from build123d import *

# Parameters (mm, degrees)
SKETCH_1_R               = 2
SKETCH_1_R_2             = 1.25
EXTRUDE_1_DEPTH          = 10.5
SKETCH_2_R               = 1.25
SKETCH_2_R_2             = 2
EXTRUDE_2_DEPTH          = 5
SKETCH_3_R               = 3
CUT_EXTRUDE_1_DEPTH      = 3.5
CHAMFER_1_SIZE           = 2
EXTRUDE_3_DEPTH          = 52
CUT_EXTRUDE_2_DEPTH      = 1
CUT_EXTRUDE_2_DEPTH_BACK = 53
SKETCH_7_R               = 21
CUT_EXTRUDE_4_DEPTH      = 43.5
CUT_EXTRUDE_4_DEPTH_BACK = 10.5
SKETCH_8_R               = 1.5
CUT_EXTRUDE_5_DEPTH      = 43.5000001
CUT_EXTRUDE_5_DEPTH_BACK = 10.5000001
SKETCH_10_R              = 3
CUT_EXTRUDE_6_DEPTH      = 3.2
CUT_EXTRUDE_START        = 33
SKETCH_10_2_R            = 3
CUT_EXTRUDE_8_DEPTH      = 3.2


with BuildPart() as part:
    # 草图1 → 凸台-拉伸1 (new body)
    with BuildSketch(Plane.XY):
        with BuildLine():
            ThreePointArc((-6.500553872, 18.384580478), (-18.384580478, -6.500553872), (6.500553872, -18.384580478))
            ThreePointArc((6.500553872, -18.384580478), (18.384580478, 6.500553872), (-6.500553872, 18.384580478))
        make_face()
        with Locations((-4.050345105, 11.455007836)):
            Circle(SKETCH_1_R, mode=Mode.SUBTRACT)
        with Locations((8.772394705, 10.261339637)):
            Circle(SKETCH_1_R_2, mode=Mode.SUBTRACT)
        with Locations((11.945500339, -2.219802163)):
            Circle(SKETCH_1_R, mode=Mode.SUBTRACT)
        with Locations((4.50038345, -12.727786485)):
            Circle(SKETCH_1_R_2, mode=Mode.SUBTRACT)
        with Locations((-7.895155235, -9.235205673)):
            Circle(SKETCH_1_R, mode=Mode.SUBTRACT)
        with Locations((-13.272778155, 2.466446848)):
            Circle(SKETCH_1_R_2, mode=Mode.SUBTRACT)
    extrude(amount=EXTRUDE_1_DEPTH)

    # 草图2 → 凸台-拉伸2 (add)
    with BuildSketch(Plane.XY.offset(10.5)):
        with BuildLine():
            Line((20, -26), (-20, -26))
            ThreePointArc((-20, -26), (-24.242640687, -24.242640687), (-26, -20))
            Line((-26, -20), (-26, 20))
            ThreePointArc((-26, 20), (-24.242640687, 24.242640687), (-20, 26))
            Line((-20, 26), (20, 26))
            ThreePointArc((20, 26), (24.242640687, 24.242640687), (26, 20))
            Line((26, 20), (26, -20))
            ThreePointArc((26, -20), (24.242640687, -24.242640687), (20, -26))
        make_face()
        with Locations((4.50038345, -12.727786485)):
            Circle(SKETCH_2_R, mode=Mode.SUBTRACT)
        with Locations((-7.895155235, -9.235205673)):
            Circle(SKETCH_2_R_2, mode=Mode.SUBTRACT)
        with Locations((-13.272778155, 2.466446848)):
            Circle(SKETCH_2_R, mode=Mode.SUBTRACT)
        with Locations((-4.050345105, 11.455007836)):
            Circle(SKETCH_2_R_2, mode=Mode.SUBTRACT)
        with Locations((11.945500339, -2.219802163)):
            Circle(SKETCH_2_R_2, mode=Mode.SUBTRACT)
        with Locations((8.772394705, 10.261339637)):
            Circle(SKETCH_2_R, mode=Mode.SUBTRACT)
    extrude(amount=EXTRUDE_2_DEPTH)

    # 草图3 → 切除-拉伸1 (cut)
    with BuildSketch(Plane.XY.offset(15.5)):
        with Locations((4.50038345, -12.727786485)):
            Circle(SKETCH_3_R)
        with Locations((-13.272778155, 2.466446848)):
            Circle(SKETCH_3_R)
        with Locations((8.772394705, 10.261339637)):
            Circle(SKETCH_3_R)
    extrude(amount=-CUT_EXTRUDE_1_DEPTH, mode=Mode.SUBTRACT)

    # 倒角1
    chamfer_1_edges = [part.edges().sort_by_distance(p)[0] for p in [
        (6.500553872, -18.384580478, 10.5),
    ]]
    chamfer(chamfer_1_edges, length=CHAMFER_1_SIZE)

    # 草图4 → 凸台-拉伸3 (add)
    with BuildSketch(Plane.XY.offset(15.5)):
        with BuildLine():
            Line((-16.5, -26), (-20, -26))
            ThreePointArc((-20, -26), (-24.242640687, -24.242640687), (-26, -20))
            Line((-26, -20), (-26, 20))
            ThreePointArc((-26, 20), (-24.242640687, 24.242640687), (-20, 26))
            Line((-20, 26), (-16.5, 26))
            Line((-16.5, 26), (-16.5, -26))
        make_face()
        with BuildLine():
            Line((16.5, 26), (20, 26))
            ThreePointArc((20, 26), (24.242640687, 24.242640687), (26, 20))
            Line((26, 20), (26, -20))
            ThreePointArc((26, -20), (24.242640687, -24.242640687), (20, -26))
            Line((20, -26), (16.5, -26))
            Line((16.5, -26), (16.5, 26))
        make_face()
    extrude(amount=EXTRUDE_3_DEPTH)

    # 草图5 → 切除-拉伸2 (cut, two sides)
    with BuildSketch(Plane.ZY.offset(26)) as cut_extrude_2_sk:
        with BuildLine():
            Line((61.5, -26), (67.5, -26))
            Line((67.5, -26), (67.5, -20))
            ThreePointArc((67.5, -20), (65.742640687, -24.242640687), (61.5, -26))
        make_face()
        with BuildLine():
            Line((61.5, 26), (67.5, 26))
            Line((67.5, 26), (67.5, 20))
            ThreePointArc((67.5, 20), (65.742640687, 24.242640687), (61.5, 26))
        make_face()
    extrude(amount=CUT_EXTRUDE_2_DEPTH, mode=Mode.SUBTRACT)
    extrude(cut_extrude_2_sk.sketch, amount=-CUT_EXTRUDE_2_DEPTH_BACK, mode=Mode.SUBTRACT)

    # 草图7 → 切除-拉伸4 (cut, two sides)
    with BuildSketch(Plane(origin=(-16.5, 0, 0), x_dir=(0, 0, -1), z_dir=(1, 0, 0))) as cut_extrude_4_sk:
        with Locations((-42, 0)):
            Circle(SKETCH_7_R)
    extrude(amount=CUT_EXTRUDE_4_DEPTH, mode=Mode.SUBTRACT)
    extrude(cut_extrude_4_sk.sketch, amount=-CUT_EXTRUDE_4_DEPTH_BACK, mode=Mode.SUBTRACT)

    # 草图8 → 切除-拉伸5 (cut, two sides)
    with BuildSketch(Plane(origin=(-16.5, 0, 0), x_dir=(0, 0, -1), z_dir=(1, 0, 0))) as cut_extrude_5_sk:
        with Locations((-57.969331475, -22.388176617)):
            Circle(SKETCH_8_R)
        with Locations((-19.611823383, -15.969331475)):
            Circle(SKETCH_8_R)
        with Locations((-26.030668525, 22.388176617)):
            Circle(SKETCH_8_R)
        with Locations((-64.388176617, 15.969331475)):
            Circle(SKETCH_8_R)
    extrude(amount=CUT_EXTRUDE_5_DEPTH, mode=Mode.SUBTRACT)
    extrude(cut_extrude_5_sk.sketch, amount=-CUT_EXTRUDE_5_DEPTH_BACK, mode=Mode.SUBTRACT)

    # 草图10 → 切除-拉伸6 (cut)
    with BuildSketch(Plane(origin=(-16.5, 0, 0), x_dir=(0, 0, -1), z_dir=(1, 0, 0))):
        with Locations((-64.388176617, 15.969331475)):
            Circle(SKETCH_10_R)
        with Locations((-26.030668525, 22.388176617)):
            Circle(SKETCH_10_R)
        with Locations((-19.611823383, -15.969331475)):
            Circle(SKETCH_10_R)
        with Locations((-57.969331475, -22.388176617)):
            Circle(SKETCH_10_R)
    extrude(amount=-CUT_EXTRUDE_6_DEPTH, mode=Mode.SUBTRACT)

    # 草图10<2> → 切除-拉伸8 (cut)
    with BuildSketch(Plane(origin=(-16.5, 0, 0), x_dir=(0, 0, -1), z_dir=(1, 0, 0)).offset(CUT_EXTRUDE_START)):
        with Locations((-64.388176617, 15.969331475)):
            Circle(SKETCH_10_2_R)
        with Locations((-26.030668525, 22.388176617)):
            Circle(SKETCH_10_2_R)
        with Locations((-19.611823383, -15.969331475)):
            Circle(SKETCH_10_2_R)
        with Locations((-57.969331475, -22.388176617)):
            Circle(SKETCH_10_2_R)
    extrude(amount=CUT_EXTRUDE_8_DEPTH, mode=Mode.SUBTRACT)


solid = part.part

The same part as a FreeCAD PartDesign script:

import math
import FreeCAD as App
import Part
import Sketcher

V = App.Vector
Q = App.Units.Quantity


def edges_at(feature, points):
    """Names of the edges that pass closest to the given points."""
    edges = feature.Shape.Edges
    near = lambda p: min(range(len(edges)), key=lambda i: edges[i].distToShape(Part.Vertex(*p))[0])
    return sorted({f"Edge{near(p) + 1}" for p in points})

doc = App.newDocument("Part")
body = doc.addObject("PartDesign::Body", "Body")

sketch1 = body.newObject("Sketcher::SketchObject", "Sketch")
sketch1.AttachmentSupport = (doc.getObject("XY_Plane"), [""])
sketch1.MapMode = "FlatFace"
sketch1.addGeometry([
    Part.Circle(V(0, 0, 0), V(0, 0, 1), 19.5),
    Part.Circle(V(-7.9, -9.2, 0), V(0, 0, 1), 2),
    Part.Circle(V(4.5, -12.7, 0), V(0, 0, 1), 1.2),
    Part.Circle(V(11.9, -2.2, 0), V(0, 0, 1), 2),
    Part.Circle(V(-13.3, 2.5, 0), V(0, 0, 1), 1.2),
    Part.Circle(V(-4.1, 11.5, 0), V(0, 0, 1), 2),
    Part.Circle(V(8.8, 10.3, 0), V(0, 0, 1), 1.2),
], False)
sketch1.addConstraint([
    Sketcher.Constraint("Coincident", 0, 3, -1, 1),
    Sketcher.Constraint("Equal", 1, 3),
    Sketcher.Constraint("Equal", 2, 4),
    Sketcher.Constraint("Equal", 3, 5),
    Sketcher.Constraint("Equal", 4, 6),
    Sketcher.Constraint("Diameter", 0, Q("39 mm")),
    Sketcher.Constraint("Diameter", 1, Q("4 mm")),
    Sketcher.Constraint("Diameter", 2, Q("2.5 mm")),
    Sketcher.Constraint("DistanceX", -1, 1, 3, 3, Q("11.9455 mm")),
    Sketcher.Constraint("DistanceX", 4, 3, -1, 1, Q("13.272778 mm")),
    Sketcher.Constraint("DistanceY", -1, 1, 6, 3, Q("10.26134 mm")),
    Sketcher.Constraint("DistanceX", 1, 3, 2, 3, Q("12.395539 mm")),
    Sketcher.Constraint("DistanceY", 2, 3, 1, 3, Q("3.492581 mm")),
    Sketcher.Constraint("DistanceX", 4, 3, 2, 3, Q("17.773162 mm")),
    Sketcher.Constraint("DistanceY", 3, 3, 4, 3, Q("4.686249 mm")),
    Sketcher.Constraint("DistanceY", 4, 3, 5, 3, Q("8.988561 mm")),
    Sketcher.Constraint("DistanceX", 1, 3, 5, 3, Q("3.84481 mm")),
    Sketcher.Constraint("DistanceY", 3, 3, 6, 3, Q("12.481142 mm")),
    Sketcher.Constraint("DistanceX", 5, 3, 6, 3, Q("12.82274 mm")),
    Sketcher.Constraint("DistanceY", 1, 3, -1, 1, Q("9.235206 mm")),
])
pad1 = body.newObject("PartDesign::Pad", "Pad")
pad1.Profile = sketch1
pad1.Length = 10.5

sketch2 = body.newObject("Sketcher::SketchObject", "Sketch001")
sketch2.AttachmentSupport = (doc.getObject("XY_Plane"), [""])
sketch2.MapMode = "FlatFace"
sketch2.AttachmentOffset = App.Placement(V(0, 0, 10.5), App.Rotation())
sketch2.addGeometry([
    Part.LineSegment(V(-20, -26, 0), V(20, -26, 0)),
    Part.ArcOfCircle(Part.Circle(V(20, -20, 0), V(0, 0, 1), 6), math.radians(-90), math.radians(0)),
    Part.LineSegment(V(26, -20, 0), V(26, 20, 0)),
    Part.ArcOfCircle(Part.Circle(V(20, 20, 0), V(0, 0, 1), 6), math.radians(0), math.radians(90)),
    Part.LineSegment(V(20, 26, 0), V(-20, 26, 0)),
    Part.ArcOfCircle(Part.Circle(V(-20, 20, 0), V(0, 0, 1), 6), math.radians(90), math.radians(180)),
    Part.LineSegment(V(-26, 20, 0), V(-26, -20, 0)),
    Part.ArcOfCircle(Part.Circle(V(-20, -20, 0), V(0, 0, 1), 6), math.radians(180), math.radians(270)),
    Part.Circle(V(4.5, -12.7, 0), V(0, 0, 1), 1.2),
    Part.Circle(V(11.9, -2.2, 0), V(0, 0, 1), 2),
    Part.Circle(V(-7.9, -9.2, 0), V(0, 0, 1), 2),
    Part.Circle(V(8.8, 10.3, 0), V(0, 0, 1), 1.2),
    Part.Circle(V(-13.3, 2.5, 0), V(0, 0, 1), 1.2),
    Part.Circle(V(-4.1, 11.5, 0), V(0, 0, 1), 2),
], False)
sketch2.addConstraint([
    Sketcher.Constraint("Tangent", 0, 2, 1, 1),
    Sketcher.Constraint("Tangent", 1, 2, 2, 1),
    Sketcher.Constraint("Tangent", 2, 2, 3, 1),
    Sketcher.Constraint("Tangent", 3, 2, 4, 1),
    Sketcher.Constraint("Tangent", 4, 2, 5, 1),
    Sketcher.Constraint("Tangent", 5, 2, 6, 1),
    Sketcher.Constraint("Tangent", 6, 2, 7, 1),
    Sketcher.Constraint("Tangent", 7, 2, 0, 1),
    Sketcher.Constraint("Horizontal", 0),
    Sketcher.Constraint("Vertical", 2),
    Sketcher.Constraint("Horizontal", 4),
    Sketcher.Constraint("Vertical", 6),
    Sketcher.Constraint("Equal", 1, 3),
    Sketcher.Constraint("Equal", 3, 5),
    Sketcher.Constraint("Equal", 5, 7),
    Sketcher.Constraint("Equal", 9, 10),
    Sketcher.Constraint("Equal", 8, 11),
    Sketcher.Constraint("Equal", 11, 12),
    Sketcher.Constraint("Equal", 10, 13),
    Sketcher.Constraint("Symmetric", 1, 3, 5, 3, -1, 1),
    Sketcher.Constraint("Equal", 4, 2),
    Sketcher.Constraint("Diameter", 9, Q("4 mm")),
    Sketcher.Constraint("Radius", 1, Q("6 mm")),
    Sketcher.Constraint("Diameter", 8, Q("2.5 mm")),
    Sketcher.Constraint("DistanceX", 0, 1, 0, 2, Q("40 mm")),
    Sketcher.Constraint("DistanceX", -1, 1, 9, 3, Q("11.9455 mm")),
    Sketcher.Constraint("DistanceY", -1, 1, 11, 3, Q("10.26134 mm")),
    Sketcher.Constraint("DistanceX", 12, 3, -1, 1, Q("13.272778 mm")),
    Sketcher.Constraint("DistanceX", 10, 3, 8, 3, Q("12.395539 mm")),
    Sketcher.Constraint("DistanceY", 8, 3, 10, 3, Q("3.492581 mm")),
    Sketcher.Constraint("DistanceY", 9, 3, 11, 3, Q("12.481142 mm")),
    Sketcher.Constraint("DistanceX", 8, 3, 11, 3, Q("4.272011 mm")),
    Sketcher.Constraint("DistanceX", 12, 3, 8, 3, Q("17.773162 mm")),
    Sketcher.Constraint("DistanceY", 12, 3, 13, 3, Q("8.988561 mm")),
    Sketcher.Constraint("DistanceX", 13, 3, 11, 3, Q("12.82274 mm")),
    Sketcher.Constraint("DistanceY", 11, 3, 13, 3, Q("1.193668 mm")),
    Sketcher.Constraint("DistanceY", 8, 3, -1, 1, Q("12.727786 mm")),
])
pad2 = body.newObject("PartDesign::Pad", "Pad001")
pad2.Profile = sketch2
pad2.Length = 5

sketch3 = body.newObject("Sketcher::SketchObject", "Sketch002")
sketch3.AttachmentSupport = (doc.getObject("XY_Plane"), [""])
sketch3.MapMode = "FlatFace"
sketch3.AttachmentOffset = App.Placement(V(0, 0, 15.5), App.Rotation())
sketch3.addGeometry([
    Part.Circle(V(4.5, -12.7, 0), V(0, 0, 1), 3),
    Part.Circle(V(-13.3, 2.5, 0), V(0, 0, 1), 3),
    Part.Circle(V(8.8, 10.3, 0), V(0, 0, 1), 3),
], False)
sketch3.addConstraint([
    Sketcher.Constraint("Equal", 0, 1),
    Sketcher.Constraint("Equal", 1, 2),
    Sketcher.Constraint("Diameter", 0, Q("6 mm")),
    Sketcher.Constraint("DistanceX", 1, 3, -1, 1, Q("13.272778 mm")),
    Sketcher.Constraint("DistanceY", -1, 1, 2, 3, Q("10.26134 mm")),
    Sketcher.Constraint("DistanceX", 1, 3, 0, 3, Q("17.773162 mm")),
    Sketcher.Constraint("DistanceX", 0, 3, 2, 3, Q("4.272011 mm")),
    Sketcher.Constraint("DistanceY", 0, 3, -1, 1, Q("12.727786 mm")),
    Sketcher.Constraint("DistanceY", -1, 1, 1, 3, Q("2.466447 mm")),
])
pocket1 = body.newObject("PartDesign::Pocket", "Pocket")
pocket1.Profile = sketch3
pocket1.Length = 3.5
doc.recompute()

chamfer = body.newObject("PartDesign::Chamfer", "Chamfer")
chamfer.Base = (pocket1, edges_at(pocket1, [(-6.501, 18.385, 10.5)]))
chamfer.Size = 2

sketch4 = body.newObject("Sketcher::SketchObject", "Sketch003")
sketch4.AttachmentSupport = (doc.getObject("XY_Plane"), [""])
sketch4.MapMode = "FlatFace"
sketch4.AttachmentOffset = App.Placement(V(0, 0, 15.5), App.Rotation())
sketch4.addGeometry([
    Part.LineSegment(V(-20, -26, 0), V(-16.5, -26, 0)),
    Part.LineSegment(V(-16.5, -26, 0), V(-16.5, 26, 0)),
    Part.LineSegment(V(-16.5, 26, 0), V(-20, 26, 0)),
    Part.ArcOfCircle(Part.Circle(V(-20, 20, 0), V(0, 0, 1), 6), math.radians(90), math.radians(180)),
    Part.LineSegment(V(-26, 20, 0), V(-26, -20, 0)),
    Part.ArcOfCircle(Part.Circle(V(-20, -20, 0), V(0, 0, 1), 6), math.radians(180), math.radians(270)),
    Part.LineSegment(V(20, 26, 0), V(16.5, 26, 0)),
    Part.LineSegment(V(16.5, 26, 0), V(16.5, -26, 0)),
    Part.LineSegment(V(16.5, -26, 0), V(20, -26, 0)),
    Part.ArcOfCircle(Part.Circle(V(20, -20, 0), V(0, 0, 1), 6), math.radians(-90), math.radians(0)),
    Part.LineSegment(V(26, -20, 0), V(26, 20, 0)),
    Part.ArcOfCircle(Part.Circle(V(20, 20, 0), V(0, 0, 1), 6), math.radians(0), math.radians(90)),
], False)
sketch4.addConstraint([
    Sketcher.Constraint("Coincident", 0, 2, 1, 1),
    Sketcher.Constraint("Coincident", 1, 2, 2, 1),
    Sketcher.Constraint("Tangent", 2, 2, 3, 1),
    Sketcher.Constraint("Tangent", 3, 2, 4, 1),
    Sketcher.Constraint("Tangent", 4, 2, 5, 1),
    Sketcher.Constraint("Tangent", 5, 2, 0, 1),
    Sketcher.Constraint("Coincident", 6, 2, 7, 1),
    Sketcher.Constraint("Coincident", 7, 2, 8, 1),
    Sketcher.Constraint("Tangent", 8, 2, 9, 1),
    Sketcher.Constraint("Tangent", 9, 2, 10, 1),
    Sketcher.Constraint("Tangent", 10, 2, 11, 1),
    Sketcher.Constraint("Tangent", 11, 2, 6, 1),
    Sketcher.Constraint("Horizontal", 0),
    Sketcher.Constraint("Vertical", 1),
    Sketcher.Constraint("Horizontal", 2),
    Sketcher.Constraint("Vertical", 4),
    Sketcher.Constraint("Horizontal", 6),
    Sketcher.Constraint("Vertical", 7),
    Sketcher.Constraint("Horizontal", 8),
    Sketcher.Constraint("Vertical", 10),
    Sketcher.Constraint("Equal", 3, 5),
    Sketcher.Constraint("Equal", 5, 9),
    Sketcher.Constraint("Equal", 9, 11),
    Sketcher.Constraint("Symmetric", 3, 3, 9, 3, -1, 1),
    Sketcher.Constraint("Symmetric", 0, 2, 6, 2, -1, 1),
    Sketcher.Constraint("Horizontal", 5, 3, 9, 3),
    Sketcher.Constraint("Radius", 3, Q("6 mm")),
    Sketcher.Constraint("DistanceY", 1, 1, 1, 2, Q("52 mm")),
    Sketcher.Constraint("DistanceX", 0, 1, 0, 2, Q("3.5 mm")),
    Sketcher.Constraint("DistanceX", 3, 3, -1, 1, Q("20 mm")),
])
pad3 = body.newObject("PartDesign::Pad", "Pad002")
pad3.Profile = sketch4
pad3.Length = 52

sketch5 = body.newObject("Sketcher::SketchObject", "Sketch004")
sketch5.AttachmentSupport = (doc.getObject("YZ_Plane"), [""])
sketch5.MapMode = "FlatFace"
sketch5.AttachmentOffset = App.Placement(V(0, 0, -26), App.Rotation())
sketch5.addGeometry([
    Part.LineSegment(V(-26, 62, 0), V(-26, 68, 0)),
    Part.LineSegment(V(-26, 68, 0), V(-20, 68, 0)),
    Part.ArcOfCircle(Part.Circle(V(-20, 62, 0), V(0, 0, 1), 6), math.radians(90), math.radians(180)),
    Part.LineSegment(V(26, 68, 0), V(26, 62, 0)),
    Part.ArcOfCircle(Part.Circle(V(20, 62, 0), V(0, 0, 1), 6), math.radians(0), math.radians(90)),
    Part.LineSegment(V(20, 68, 0), V(26, 68, 0)),
], False)
sketch5.addConstraint([
    Sketcher.Constraint("Coincident", 0, 2, 1, 1),
    Sketcher.Constraint("Tangent", 1, 2, 2, 1),
    Sketcher.Constraint("Tangent", 2, 2, 0, 1),
    Sketcher.Constraint("Tangent", 3, 2, 4, 1),
    Sketcher.Constraint("Tangent", 4, 2, 5, 1),
    Sketcher.Constraint("Coincident", 5, 2, 3, 1),
    Sketcher.Constraint("Vertical", 0),
    Sketcher.Constraint("Horizontal", 1),
    Sketcher.Constraint("Vertical", 3),
    Sketcher.Constraint("Horizontal", 5),
    Sketcher.Constraint("Equal", 2, 4),
    Sketcher.Constraint("Symmetric", 2, 3, 4, 3, -2),
    Sketcher.Constraint("Radius", 2, Q("6 mm")),
    Sketcher.Constraint("DistanceX", 2, 3, -1, 1, Q("20 mm")),
    Sketcher.Constraint("DistanceY", -1, 1, 2, 3, Q("61.5 mm")),
])
pocket2 = body.newObject("PartDesign::Pocket", "Pocket001")
pocket2.Profile = sketch5
pocket2.Type = "ThroughAll"
pocket2.Midplane = True

sketch6 = body.newObject("Sketcher::SketchObject", "Sketch005")
sketch6.AttachmentSupport = (doc.getObject("YZ_Plane"), [""])
sketch6.MapMode = "FlatFace"
sketch6.AttachmentOffset = App.Placement(V(0, 0, -16.5), App.Rotation())
sketch6.addGeometry(Part.Circle(V(0, 42, 0), V(0, 0, 1), 21), False)
sketch6.addConstraint([
    Sketcher.Constraint("PointOnObject", 0, 3, -2),
    Sketcher.Constraint("Diameter", 0, Q("42 mm")),
    Sketcher.Constraint("DistanceY", -1, 1, 0, 3, Q("42 mm")),
])
pocket3 = body.newObject("PartDesign::Pocket", "Pocket002")
pocket3.Profile = sketch6
pocket3.Type = "ThroughAll"
pocket3.Midplane = True

sketch7 = body.newObject("Sketcher::SketchObject", "Sketch006")
sketch7.AttachmentSupport = (doc.getObject("YZ_Plane"), [""])
sketch7.MapMode = "FlatFace"
sketch7.AttachmentOffset = App.Placement(V(0, 0, -16.5), App.Rotation())
sketch7.addGeometry([
    Part.Circle(V(-22.4, 58, 0), V(0, 0, 1), 1.5),
    Part.Circle(V(-16, 19.6, 0), V(0, 0, 1), 1.5),
    Part.Circle(V(22.4, 26, 0), V(0, 0, 1), 1.5),
    Part.Circle(V(16, 64.4, 0), V(0, 0, 1), 1.5),
], False)
sketch7.addConstraint([
    Sketcher.Constraint("Equal", 0, 1),
    Sketcher.Constraint("Equal", 1, 2),
    Sketcher.Constraint("Equal", 2, 3),
    Sketcher.Constraint("Diameter", 0, Q("3 mm")),
    Sketcher.Constraint("DistanceY", -1, 1, 0, 3, Q("57.969331 mm")),
    Sketcher.Constraint("DistanceX", 1, 3, -1, 1, Q("15.969331 mm")),
    Sketcher.Constraint("DistanceY", -1, 1, 2, 3, Q("26.030669 mm")),
    Sketcher.Constraint("DistanceX", -1, 1, 3, 3, Q("15.969331 mm")),
    Sketcher.Constraint("DistanceY", 1, 3, 0, 3, Q("38.357508 mm")),
    Sketcher.Constraint("DistanceX", 1, 3, 2, 3, Q("38.357508 mm")),
    Sketcher.Constraint("DistanceX", 0, 3, 3, 3, Q("38.357508 mm")),
    Sketcher.Constraint("DistanceY", 2, 3, 3, 3, Q("38.357508 mm")),
])
pocket4 = body.newObject("PartDesign::Pocket", "Pocket003")
pocket4.Profile = sketch7
pocket4.Type = "ThroughAll"
pocket4.Midplane = True

sketch8 = body.newObject("Sketcher::SketchObject", "Sketch007")
sketch8.AttachmentSupport = (doc.getObject("YZ_Plane"), [""])
sketch8.MapMode = "FlatFace"
sketch8.AttachmentOffset = App.Placement(V(0, 0, -16.5), App.Rotation())
sketch8.addGeometry([
    Part.Circle(V(16, 64.4, 0), V(0, 0, 1), 3),
    Part.Circle(V(22.4, 26, 0), V(0, 0, 1), 3),
    Part.Circle(V(-16, 19.6, 0), V(0, 0, 1), 3),
    Part.Circle(V(-22.4, 58, 0), V(0, 0, 1), 3),
], False)
sketch8.addConstraint([
    Sketcher.Constraint("Equal", 0, 1),
    Sketcher.Constraint("Equal", 1, 2),
    Sketcher.Constraint("Equal", 2, 3),
    Sketcher.Constraint("Diameter", 0, Q("6 mm")),
    Sketcher.Constraint("DistanceX", -1, 1, 0, 3, Q("15.969331 mm")),
    Sketcher.Constraint("DistanceY", -1, 1, 1, 3, Q("26.030669 mm")),
    Sketcher.Constraint("DistanceX", 2, 3, -1, 1, Q("15.969331 mm")),
    Sketcher.Constraint("DistanceY", -1, 1, 3, 3, Q("57.969331 mm")),
    Sketcher.Constraint("DistanceY", 1, 3, 0, 3, Q("38.357508 mm")),
    Sketcher.Constraint("DistanceX", 2, 3, 1, 3, Q("38.357508 mm")),
    Sketcher.Constraint("DistanceY", 2, 3, 3, 3, Q("38.357508 mm")),
    Sketcher.Constraint("DistanceX", 3, 3, 0, 3, Q("38.357508 mm")),
])
pocket5 = body.newObject("PartDesign::Pocket", "Pocket004")
pocket5.Profile = sketch8
pocket5.Length = 3.2

sketch9 = body.newObject("Sketcher::SketchObject", "Sketch008")
sketch9.AttachmentSupport = (doc.getObject("YZ_Plane"), [""])
sketch9.MapMode = "FlatFace"
sketch9.AttachmentOffset = App.Placement(V(0, 0, 16.5), App.Rotation())
sketch9.addGeometry([
    Part.Circle(V(16, 64.4, 0), V(0, 0, 1), 3),
    Part.Circle(V(22.4, 26, 0), V(0, 0, 1), 3),
    Part.Circle(V(-16, 19.6, 0), V(0, 0, 1), 3),
    Part.Circle(V(-22.4, 58, 0), V(0, 0, 1), 3),
], False)
sketch9.addConstraint([
    Sketcher.Constraint("Equal", 0, 1),
    Sketcher.Constraint("Equal", 1, 2),
    Sketcher.Constraint("Equal", 2, 3),
    Sketcher.Constraint("Diameter", 0, Q("6 mm")),
    Sketcher.Constraint("DistanceX", -1, 1, 0, 3, Q("15.969331 mm")),
    Sketcher.Constraint("DistanceY", -1, 1, 1, 3, Q("26.030669 mm")),
    Sketcher.Constraint("DistanceX", 2, 3, -1, 1, Q("15.969331 mm")),
    Sketcher.Constraint("DistanceY", -1, 1, 3, 3, Q("57.969331 mm")),
    Sketcher.Constraint("DistanceY", 1, 3, 0, 3, Q("38.357508 mm")),
    Sketcher.Constraint("DistanceX", 2, 3, 1, 3, Q("38.357508 mm")),
    Sketcher.Constraint("DistanceY", 2, 3, 3, 3, Q("38.357508 mm")),
    Sketcher.Constraint("DistanceX", 3, 3, 0, 3, Q("38.357508 mm")),
])
pocket6 = body.newObject("PartDesign::Pocket", "Pocket005")
pocket6.Profile = sketch9
pocket6.Length = 3.2
pocket6.Reversed = True

doc.recompute()
